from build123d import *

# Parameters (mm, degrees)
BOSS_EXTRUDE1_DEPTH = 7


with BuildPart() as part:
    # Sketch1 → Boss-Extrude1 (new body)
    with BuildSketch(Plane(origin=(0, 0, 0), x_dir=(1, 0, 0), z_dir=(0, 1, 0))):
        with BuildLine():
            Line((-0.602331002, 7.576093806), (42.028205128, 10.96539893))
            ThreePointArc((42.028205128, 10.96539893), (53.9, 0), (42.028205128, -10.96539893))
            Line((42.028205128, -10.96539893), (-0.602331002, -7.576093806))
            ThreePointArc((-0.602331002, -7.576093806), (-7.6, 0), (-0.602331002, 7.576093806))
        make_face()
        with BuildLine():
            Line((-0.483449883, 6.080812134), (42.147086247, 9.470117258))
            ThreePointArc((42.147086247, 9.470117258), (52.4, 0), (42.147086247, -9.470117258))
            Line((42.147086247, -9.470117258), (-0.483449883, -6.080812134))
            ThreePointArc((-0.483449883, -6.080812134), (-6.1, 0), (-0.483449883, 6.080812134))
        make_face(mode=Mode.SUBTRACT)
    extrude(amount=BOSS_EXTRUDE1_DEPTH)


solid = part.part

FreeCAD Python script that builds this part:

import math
import FreeCAD as App
import Part
import Sketcher

V = App.Vector
Q = App.Units.Quantity

doc = App.newDocument("Part")
params = doc.addObject("Spreadsheet::Sheet", "Params")
for row, (alias, value) in enumerate([
    ("sketch1_radius", "11 mm"),
    ("sketch1_radius2", "7.6 mm"),
    ("sketch1_radius3", "9.5 mm"),
    ("pad1_length", "7 mm"),
], start=1):
    params.set(f"A{row}", alias)
    params.set(f"B{row}", "=" + value)
    params.setAlias(f"B{row}", alias)

body = doc.addObject("PartDesign::Body", "Body")

# Sketch on XZ plane
sketch1 = body.newObject("Sketcher::SketchObject", "Sketch")
sketch1.AttachmentSupport = (doc.getObject("XZ_Plane"), [""])
sketch1.MapMode = "FlatFace"
sketch1.addGeometry([
    Part.LineSegment(V(42, -11, 0), V(-1, -8, 0)),  # 0
    Part.ArcOfCircle(Part.Circle(V(0, 0, 0), V(0, 0, 1), 8), math.radians(95), math.radians(265)),  # 1
    Part.LineSegment(V(-1, 8, 0), V(42, 11, 0)),  # 2
    Part.ArcOfCircle(Part.Circle(V(43, 0, 0), V(0, 0, 1), 11), math.radians(-95), math.radians(95)),  # 3
    Part.LineSegment(V(0, -6, 0), V(42, -9, 0)),  # 4
    Part.ArcOfCircle(Part.Circle(V(43, 0, 0), V(0, 0, 1), 10), math.radians(-95), math.radians(95)),  # 5
    Part.LineSegment(V(42, 9, 0), V(0, 6, 0)),  # 6
    Part.ArcOfCircle(Part.Circle(V(0, 0, 0), V(0, 0, 1), 6), math.radians(95), math.radians(265)),  # 7
], False)
sketch1.addConstraint([
    Sketcher.Constraint("Tangent", 0, 2, 1, 2),
    Sketcher.Constraint("Tangent", 1, 1, 2, 1),
    Sketcher.Constraint("Tangent", 2, 2, 3, 2),
    Sketcher.Constraint("Tangent", 3, 1, 0, 1),
    Sketcher.Constraint("Tangent", 4, 2, 5, 1),
    Sketcher.Constraint("Tangent", 5, 2, 6, 1),
    Sketcher.Constraint("Tangent", 6, 2, 7, 1),
    Sketcher.Constraint("Tangent", 7, 2, 4, 1),
    Sketcher.Constraint("Coincident", 1, 3, -1, 1),
    Sketcher.Constraint("Coincident", 7, 3, -1, 1),
    Sketcher.Constraint("Coincident", 5, 3, 3, 3),
    Sketcher.Constraint("PointOnObject", 3, 3, -1),
    Sketcher.Constraint("Parallel", 0, 4),
    Sketcher.Constraint("Radius", 3, Q("11 mm")),
    Sketcher.Constraint("Radius", 1, Q("7.6 mm")),
    Sketcher.Constraint("Radius", 5, Q("9.5 mm")),
    Sketcher.Constraint("DistanceX", -1, 1, 3, 3, Q("42.9 mm")),
])
sketch1.setExpression("Constraints[13]", "Params.sketch1_radius")
sketch1.setExpression("Constraints[14]", "Params.sketch1_radius2")
sketch1.setExpression("Constraints[15]", "Params.sketch1_radius3")
pad1 = body.newObject("PartDesign::Pad", "Pad")
pad1.Profile = sketch1
pad1.setExpression("Length", "Params.pad1_length")
pad1.Reversed = True

doc.recompute()
